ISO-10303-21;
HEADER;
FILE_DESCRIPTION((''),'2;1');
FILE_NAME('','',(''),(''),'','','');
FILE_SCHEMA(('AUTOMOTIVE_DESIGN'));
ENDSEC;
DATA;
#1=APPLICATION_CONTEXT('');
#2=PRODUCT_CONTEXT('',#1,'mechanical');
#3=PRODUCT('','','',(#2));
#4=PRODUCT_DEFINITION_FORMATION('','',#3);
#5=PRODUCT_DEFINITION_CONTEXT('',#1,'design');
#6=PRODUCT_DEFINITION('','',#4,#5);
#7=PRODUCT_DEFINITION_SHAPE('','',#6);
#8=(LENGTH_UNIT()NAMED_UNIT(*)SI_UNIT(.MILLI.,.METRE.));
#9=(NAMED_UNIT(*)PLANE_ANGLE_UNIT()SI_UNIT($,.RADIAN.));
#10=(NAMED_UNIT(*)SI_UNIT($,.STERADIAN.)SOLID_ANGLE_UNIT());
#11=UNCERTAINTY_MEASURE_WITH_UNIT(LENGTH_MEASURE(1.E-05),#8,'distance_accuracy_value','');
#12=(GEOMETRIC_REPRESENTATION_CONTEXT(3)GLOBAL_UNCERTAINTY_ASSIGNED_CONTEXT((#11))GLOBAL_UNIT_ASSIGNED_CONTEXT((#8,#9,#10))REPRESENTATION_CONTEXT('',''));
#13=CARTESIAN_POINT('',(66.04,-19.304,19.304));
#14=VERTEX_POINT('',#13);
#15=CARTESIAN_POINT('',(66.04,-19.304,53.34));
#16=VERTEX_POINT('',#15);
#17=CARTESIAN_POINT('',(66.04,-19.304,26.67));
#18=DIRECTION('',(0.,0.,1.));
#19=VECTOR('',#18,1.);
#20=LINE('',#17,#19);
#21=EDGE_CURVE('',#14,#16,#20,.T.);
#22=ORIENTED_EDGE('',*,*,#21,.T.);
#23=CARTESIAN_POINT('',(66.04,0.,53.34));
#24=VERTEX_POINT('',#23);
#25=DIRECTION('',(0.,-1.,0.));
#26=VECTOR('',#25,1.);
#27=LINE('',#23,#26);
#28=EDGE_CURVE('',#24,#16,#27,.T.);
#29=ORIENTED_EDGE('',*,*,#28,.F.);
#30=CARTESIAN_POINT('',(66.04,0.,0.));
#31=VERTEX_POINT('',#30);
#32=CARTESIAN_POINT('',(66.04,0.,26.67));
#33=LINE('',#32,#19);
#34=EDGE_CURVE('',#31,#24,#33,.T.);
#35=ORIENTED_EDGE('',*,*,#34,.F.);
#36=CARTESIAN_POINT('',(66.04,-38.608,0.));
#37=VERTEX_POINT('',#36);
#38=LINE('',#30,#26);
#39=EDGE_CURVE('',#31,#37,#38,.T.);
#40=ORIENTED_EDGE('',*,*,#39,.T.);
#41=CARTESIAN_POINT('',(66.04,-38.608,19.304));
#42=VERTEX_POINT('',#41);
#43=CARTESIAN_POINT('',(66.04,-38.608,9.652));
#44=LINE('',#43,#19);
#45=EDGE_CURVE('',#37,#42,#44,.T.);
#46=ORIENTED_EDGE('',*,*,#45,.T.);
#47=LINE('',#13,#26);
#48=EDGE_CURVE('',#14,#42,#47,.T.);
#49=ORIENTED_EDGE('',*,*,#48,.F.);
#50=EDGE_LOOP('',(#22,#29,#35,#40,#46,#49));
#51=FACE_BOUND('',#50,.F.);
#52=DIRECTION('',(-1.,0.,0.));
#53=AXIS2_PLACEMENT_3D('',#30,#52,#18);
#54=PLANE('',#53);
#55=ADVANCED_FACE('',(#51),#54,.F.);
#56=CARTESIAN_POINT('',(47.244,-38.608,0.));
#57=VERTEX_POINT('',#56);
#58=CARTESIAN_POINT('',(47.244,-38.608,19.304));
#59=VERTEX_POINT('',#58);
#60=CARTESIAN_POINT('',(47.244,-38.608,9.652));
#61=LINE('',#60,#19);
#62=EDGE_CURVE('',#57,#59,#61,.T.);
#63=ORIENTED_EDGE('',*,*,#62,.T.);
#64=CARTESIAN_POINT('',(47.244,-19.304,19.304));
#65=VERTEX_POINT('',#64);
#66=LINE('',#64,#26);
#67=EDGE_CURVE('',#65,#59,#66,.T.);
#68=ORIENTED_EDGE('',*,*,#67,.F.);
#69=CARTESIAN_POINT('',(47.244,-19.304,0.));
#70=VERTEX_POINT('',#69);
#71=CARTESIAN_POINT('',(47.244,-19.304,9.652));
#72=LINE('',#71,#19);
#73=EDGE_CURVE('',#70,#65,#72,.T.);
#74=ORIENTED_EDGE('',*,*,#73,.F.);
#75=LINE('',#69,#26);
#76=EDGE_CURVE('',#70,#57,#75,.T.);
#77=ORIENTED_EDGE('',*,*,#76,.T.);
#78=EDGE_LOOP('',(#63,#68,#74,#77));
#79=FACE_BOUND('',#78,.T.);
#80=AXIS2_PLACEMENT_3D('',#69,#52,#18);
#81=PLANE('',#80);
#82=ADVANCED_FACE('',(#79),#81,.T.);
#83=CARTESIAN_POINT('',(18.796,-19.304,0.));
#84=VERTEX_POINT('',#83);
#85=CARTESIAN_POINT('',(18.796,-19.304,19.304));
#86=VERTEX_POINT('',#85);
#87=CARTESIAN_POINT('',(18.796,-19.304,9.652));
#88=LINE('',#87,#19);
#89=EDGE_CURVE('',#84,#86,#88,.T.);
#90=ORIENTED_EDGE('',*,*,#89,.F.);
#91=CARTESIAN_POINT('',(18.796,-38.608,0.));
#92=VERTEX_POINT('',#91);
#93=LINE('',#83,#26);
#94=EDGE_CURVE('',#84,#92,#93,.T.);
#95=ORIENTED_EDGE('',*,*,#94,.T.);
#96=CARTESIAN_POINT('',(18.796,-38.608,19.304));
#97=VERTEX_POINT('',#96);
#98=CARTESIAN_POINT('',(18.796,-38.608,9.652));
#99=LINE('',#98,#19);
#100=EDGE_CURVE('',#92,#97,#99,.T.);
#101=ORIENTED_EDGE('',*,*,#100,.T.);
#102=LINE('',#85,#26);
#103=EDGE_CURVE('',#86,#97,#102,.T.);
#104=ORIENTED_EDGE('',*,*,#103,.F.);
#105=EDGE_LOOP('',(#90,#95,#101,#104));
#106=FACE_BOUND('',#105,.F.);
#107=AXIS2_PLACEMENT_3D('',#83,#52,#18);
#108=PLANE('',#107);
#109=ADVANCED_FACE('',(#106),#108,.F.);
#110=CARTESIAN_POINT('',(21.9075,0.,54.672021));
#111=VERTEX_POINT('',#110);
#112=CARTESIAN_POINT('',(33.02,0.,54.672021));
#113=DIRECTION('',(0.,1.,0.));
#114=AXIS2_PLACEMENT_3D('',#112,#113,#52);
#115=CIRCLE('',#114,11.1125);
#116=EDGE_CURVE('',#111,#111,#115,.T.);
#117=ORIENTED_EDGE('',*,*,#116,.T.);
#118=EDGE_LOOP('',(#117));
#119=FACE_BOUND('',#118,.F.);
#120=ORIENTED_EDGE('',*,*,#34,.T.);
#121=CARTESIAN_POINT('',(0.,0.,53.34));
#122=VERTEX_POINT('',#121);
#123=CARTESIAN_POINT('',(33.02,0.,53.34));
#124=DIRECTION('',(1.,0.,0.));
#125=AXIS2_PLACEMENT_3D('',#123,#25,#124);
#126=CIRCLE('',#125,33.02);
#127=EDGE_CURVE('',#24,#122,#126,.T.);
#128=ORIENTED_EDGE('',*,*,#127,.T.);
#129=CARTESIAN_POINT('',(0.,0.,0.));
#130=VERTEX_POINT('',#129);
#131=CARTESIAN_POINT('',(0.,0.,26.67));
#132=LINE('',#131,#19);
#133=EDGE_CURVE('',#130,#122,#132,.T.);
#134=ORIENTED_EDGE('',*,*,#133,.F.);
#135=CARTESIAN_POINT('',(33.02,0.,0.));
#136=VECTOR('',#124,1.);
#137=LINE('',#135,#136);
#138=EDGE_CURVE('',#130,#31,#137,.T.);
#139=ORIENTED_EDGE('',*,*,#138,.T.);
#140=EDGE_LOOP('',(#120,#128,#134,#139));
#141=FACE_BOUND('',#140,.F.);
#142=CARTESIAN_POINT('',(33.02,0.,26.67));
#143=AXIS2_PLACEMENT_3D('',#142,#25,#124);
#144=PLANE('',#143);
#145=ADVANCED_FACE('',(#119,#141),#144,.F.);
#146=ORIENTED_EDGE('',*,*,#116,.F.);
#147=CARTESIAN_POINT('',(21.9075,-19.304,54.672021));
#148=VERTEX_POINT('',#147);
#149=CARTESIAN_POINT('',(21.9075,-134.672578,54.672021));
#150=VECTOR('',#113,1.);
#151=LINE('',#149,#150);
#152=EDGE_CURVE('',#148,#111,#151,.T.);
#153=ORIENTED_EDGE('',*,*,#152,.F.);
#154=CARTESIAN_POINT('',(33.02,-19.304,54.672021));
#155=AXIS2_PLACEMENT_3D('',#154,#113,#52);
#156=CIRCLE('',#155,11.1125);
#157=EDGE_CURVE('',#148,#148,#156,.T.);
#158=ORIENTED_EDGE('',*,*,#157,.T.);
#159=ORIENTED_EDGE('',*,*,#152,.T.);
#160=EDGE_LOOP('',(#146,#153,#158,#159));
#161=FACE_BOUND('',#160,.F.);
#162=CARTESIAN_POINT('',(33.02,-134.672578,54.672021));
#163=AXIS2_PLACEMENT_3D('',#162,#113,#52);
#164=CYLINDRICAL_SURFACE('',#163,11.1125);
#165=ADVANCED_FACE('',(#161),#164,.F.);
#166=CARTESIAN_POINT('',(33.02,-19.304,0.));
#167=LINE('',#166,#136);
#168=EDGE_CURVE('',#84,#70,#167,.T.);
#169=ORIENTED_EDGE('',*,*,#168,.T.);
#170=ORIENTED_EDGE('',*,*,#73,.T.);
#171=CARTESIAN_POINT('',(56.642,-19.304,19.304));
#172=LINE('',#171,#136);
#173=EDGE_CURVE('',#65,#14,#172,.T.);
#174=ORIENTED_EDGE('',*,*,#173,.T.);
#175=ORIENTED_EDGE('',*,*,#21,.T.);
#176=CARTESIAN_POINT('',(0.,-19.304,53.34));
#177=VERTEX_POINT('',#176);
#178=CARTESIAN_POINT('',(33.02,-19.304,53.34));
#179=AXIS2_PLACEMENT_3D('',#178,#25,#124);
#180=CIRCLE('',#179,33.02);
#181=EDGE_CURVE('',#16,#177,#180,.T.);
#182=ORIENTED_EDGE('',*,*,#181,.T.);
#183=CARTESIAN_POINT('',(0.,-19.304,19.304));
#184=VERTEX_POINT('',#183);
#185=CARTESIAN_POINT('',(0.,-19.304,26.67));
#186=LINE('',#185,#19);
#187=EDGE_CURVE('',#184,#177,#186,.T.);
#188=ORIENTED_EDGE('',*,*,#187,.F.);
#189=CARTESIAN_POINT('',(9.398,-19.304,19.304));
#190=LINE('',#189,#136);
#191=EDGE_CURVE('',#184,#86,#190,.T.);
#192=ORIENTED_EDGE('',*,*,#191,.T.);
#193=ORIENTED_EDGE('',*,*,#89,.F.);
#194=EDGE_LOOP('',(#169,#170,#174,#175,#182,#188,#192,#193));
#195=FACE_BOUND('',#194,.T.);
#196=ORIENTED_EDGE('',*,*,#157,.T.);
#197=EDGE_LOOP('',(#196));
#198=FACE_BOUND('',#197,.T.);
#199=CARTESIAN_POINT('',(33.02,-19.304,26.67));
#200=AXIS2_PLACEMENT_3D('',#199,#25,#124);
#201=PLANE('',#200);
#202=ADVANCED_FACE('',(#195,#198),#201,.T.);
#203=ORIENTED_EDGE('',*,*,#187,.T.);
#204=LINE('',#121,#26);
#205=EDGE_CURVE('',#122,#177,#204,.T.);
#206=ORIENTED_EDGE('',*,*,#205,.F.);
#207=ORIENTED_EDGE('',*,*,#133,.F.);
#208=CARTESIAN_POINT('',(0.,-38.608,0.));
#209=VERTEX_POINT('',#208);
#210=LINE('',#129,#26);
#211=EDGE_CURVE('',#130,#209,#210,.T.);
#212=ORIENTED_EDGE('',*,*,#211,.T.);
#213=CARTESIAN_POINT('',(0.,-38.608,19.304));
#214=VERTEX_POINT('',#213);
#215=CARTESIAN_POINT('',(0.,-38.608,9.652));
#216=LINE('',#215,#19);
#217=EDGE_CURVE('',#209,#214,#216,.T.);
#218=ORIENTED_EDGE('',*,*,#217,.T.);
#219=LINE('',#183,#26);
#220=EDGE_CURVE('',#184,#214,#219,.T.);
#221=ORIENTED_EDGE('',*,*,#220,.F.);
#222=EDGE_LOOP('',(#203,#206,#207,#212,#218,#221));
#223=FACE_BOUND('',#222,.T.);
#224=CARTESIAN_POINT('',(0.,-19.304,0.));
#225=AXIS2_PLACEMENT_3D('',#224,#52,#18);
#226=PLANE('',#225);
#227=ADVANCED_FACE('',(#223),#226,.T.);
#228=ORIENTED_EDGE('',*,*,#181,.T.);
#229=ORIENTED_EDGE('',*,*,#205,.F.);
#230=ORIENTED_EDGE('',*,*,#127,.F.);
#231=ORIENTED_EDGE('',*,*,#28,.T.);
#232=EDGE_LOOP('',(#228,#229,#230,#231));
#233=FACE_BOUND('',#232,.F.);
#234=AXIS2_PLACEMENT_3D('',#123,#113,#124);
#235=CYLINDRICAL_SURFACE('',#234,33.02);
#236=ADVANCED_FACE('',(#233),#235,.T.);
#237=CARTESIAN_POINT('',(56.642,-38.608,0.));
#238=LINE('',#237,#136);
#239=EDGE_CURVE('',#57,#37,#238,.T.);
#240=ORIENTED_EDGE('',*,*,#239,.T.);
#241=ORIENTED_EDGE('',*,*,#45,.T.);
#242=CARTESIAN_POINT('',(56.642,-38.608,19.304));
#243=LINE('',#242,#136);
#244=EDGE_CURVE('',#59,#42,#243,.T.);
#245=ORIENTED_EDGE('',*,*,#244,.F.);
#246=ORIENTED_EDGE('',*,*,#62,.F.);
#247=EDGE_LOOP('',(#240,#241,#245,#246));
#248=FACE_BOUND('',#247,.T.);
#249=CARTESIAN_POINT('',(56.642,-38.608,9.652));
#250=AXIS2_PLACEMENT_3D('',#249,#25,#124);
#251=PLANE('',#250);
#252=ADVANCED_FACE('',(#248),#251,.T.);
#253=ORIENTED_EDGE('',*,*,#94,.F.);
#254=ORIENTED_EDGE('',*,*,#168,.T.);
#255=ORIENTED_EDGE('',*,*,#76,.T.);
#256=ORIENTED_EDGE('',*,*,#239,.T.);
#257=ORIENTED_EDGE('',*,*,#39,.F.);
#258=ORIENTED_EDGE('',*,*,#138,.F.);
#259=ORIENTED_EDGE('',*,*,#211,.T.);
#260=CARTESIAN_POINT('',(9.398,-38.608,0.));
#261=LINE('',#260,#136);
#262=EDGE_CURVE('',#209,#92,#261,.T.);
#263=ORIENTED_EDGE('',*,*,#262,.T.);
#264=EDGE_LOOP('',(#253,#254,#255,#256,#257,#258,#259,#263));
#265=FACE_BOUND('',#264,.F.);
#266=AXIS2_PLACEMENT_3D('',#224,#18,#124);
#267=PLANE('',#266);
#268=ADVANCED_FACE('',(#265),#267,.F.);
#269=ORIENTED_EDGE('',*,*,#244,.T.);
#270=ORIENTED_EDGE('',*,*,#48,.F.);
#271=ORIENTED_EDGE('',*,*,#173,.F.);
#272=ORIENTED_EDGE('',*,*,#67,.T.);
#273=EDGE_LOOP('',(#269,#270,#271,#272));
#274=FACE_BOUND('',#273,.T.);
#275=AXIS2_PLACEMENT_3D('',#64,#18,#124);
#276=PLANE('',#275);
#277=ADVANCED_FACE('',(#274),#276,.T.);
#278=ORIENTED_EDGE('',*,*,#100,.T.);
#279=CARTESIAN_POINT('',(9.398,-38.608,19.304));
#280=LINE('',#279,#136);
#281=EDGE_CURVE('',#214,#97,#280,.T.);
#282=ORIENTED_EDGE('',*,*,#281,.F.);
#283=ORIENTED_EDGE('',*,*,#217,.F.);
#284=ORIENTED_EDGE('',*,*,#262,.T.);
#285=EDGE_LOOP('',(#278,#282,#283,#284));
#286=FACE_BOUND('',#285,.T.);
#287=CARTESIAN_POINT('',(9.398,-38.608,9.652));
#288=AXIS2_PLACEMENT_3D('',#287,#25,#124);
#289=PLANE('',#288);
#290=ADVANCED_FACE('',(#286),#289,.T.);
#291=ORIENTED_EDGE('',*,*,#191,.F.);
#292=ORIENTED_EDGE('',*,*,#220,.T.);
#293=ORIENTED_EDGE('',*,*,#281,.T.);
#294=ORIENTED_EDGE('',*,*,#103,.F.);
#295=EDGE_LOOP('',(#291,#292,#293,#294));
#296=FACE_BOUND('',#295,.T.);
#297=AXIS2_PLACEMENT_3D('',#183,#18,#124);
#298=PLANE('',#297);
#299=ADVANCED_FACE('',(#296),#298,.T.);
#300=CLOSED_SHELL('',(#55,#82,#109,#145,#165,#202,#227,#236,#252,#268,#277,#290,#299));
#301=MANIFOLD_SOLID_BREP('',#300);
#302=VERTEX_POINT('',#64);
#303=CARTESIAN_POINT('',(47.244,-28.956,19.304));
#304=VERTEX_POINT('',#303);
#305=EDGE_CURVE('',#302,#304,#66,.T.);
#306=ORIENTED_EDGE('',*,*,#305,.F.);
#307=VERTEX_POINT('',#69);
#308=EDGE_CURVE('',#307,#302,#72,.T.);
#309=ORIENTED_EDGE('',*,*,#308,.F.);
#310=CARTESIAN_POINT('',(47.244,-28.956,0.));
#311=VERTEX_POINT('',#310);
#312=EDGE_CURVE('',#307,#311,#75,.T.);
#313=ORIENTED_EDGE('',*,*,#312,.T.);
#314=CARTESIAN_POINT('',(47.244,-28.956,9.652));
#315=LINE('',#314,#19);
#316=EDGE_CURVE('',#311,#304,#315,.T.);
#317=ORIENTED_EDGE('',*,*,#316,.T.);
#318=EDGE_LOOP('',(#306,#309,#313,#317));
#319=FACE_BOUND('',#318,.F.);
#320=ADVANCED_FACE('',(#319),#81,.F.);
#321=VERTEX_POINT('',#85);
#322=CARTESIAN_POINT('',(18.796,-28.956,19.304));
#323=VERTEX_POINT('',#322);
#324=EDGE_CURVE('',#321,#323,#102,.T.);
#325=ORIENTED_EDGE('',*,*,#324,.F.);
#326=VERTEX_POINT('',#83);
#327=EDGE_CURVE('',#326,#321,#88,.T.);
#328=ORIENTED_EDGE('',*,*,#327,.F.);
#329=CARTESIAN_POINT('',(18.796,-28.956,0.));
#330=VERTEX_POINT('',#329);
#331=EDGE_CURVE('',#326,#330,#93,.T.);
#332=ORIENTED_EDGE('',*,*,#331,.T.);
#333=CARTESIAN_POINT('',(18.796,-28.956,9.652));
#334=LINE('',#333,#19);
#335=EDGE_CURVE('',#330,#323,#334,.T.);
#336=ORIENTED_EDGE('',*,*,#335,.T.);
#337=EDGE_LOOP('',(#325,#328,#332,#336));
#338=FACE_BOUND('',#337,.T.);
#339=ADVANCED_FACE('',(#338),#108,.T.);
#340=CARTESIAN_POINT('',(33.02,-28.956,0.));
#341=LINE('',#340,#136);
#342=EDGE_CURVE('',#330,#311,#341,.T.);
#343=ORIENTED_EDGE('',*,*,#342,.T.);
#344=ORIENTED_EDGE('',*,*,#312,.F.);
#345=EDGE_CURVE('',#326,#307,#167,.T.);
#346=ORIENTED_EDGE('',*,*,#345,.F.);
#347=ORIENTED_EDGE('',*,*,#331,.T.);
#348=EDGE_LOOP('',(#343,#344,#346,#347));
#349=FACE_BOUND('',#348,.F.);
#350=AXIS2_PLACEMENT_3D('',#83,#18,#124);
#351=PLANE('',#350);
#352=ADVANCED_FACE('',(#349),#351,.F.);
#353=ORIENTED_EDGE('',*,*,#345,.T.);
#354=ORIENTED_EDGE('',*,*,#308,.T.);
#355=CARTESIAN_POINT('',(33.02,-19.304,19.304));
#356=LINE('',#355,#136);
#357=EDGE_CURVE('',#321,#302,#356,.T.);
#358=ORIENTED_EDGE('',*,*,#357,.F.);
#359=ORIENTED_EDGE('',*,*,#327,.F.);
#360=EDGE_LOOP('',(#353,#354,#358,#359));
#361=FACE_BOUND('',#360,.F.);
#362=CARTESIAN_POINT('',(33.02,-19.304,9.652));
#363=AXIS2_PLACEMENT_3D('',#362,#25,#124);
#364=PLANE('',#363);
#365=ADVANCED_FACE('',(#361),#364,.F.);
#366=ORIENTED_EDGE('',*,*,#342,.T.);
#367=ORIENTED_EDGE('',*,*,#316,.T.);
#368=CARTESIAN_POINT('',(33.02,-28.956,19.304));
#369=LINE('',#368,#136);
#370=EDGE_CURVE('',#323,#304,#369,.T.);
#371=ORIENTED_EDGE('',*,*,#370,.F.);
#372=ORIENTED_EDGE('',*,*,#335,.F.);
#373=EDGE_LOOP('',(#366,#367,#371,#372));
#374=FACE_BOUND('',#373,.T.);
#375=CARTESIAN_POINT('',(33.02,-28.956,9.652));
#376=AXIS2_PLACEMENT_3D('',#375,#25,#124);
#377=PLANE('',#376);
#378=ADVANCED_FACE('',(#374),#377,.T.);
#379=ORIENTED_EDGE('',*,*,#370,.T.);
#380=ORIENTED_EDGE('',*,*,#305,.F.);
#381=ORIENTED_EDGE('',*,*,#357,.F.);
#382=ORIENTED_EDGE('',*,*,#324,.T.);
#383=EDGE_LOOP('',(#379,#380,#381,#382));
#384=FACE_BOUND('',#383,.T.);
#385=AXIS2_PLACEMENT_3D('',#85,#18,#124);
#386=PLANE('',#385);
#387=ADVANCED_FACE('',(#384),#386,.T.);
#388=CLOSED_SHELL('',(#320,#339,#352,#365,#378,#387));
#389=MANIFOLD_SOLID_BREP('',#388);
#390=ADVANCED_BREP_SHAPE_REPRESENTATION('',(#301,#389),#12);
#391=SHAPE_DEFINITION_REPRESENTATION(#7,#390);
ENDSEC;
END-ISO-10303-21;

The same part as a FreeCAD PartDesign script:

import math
import FreeCAD as App
import Part
import Sketcher

V = App.Vector
Q = App.Units.Quantity

doc = App.newDocument("Part")
body = doc.addObject("PartDesign::Body", "Body")

sketch1 = body.newObject("Sketcher::SketchObject", "Sketch")
sketch1.AttachmentSupport = (doc.getObject("XZ_Plane"), [""])
sketch1.MapMode = "FlatFace"
sketch1.addGeometry([
    Part.LineSegment(V(0, 53, 0), V(0, 0, 0)),
    Part.LineSegment(V(0, 0, 0), V(66, 0, 0)),
    Part.LineSegment(V(66, 0, 0), V(66, 53, 0)),
    Part.ArcOfCircle(Part.Circle(V(33, 53, 0), V(0, 0, 1), 33), math.radians(0), math.radians(180)),
], False)
sketch1.addConstraint([
    Sketcher.Constraint("Coincident", 0, 2, 1, 1),
    Sketcher.Constraint("Coincident", 1, 2, 2, 1),
    Sketcher.Constraint("Tangent", 2, 2, 3, 1),
    Sketcher.Constraint("Tangent", 3, 2, 0, 1),
    Sketcher.Constraint("Vertical", 0),
    Sketcher.Constraint("Horizontal", 1),
    Sketcher.Constraint("Vertical", 2),
    Sketcher.Constraint("Coincident", 0, 2, -1, 1),
    Sketcher.Constraint("Radius", 3, Q("1.3 in")),
    Sketcher.Constraint("DistanceY", 0, 2, 0, 1, Q("2.1 in")),
])
pad1 = body.newObject("PartDesign::Pad", "Pad")
pad1.Profile = sketch1
pad1.Length = Q("0.76 in")

sketch2 = body.newObject("Sketcher::SketchObject", "Sketch001")
sketch2.AttachmentSupport = (doc.getObject("XZ_Plane"), [""])
sketch2.MapMode = "FlatFace"
sketch2.AttachmentOffset = App.Placement(V(0, 0, 0.76 * 25.4), App.Rotation())
sketch2.addGeometry([
    Part.LineSegment(V(0, 19, 0), V(0, 0, 0)),
    Part.LineSegment(V(0, 0, 0), V(19, 0, 0)),
    Part.LineSegment(V(19, 0, 0), V(19, 19, 0)),
    Part.LineSegment(V(19, 19, 0), V(0, 19, 0)),
    Part.LineSegment(V(47, 19, 0), V(47, 0, 0)),
    Part.LineSegment(V(47, 0, 0), V(66, 0, 0)),
    Part.LineSegment(V(66, 0, 0), V(66, 19, 0)),
    Part.LineSegment(V(66, 19, 0), V(47, 19, 0)),
], False)
sketch2.addConstraint([
    Sketcher.Constraint("Coincident", 0, 2, 1, 1),
    Sketcher.Constraint("Coincident", 1, 2, 2, 1),
    Sketcher.Constraint("Coincident", 2, 2, 3, 1),
    Sketcher.Constraint("Coincident", 3, 2, 0, 1),
    Sketcher.Constraint("Coincident", 4, 2, 5, 1),
    Sketcher.Constraint("Coincident", 5, 2, 6, 1),
    Sketcher.Constraint("Coincident", 6, 2, 7, 1),
    Sketcher.Constraint("Coincident", 7, 2, 4, 1),
    Sketcher.Constraint("Vertical", 0),
    Sketcher.Constraint("Horizontal", 1),
    Sketcher.Constraint("Vertical", 2),
    Sketcher.Constraint("Horizontal", 3),
    Sketcher.Constraint("Vertical", 4),
    Sketcher.Constraint("Horizontal", 5),
    Sketcher.Constraint("Vertical", 6),
    Sketcher.Constraint("Horizontal", 7),
    Sketcher.Constraint("Coincident", 0, 2, -1, 1),
    Sketcher.Constraint("PointOnObject", 4, 2, -1),
    Sketcher.Constraint("Horizontal", 3, 2, 6, 2),
    Sketcher.Constraint("Equal", 3, 5),
    Sketcher.Constraint("DistanceX", 1, 1, 1, 2, Q("0.74 in")),
    Sketcher.Constraint("DistanceY", 0, 2, 0, 1, Q("0.76 in")),
    Sketcher.Constraint("DistanceX", -1, 1, 5, 2, Q("2.6 in")),
])
pad2 = body.newObject("PartDesign::Pad", "Pad001")
pad2.Profile = sketch2
pad2.Length = Q("0.76 in")

sketch3 = body.newObject("Sketcher::SketchObject", "Sketch002")
sketch3.AttachmentSupport = (doc.getObject("XZ_Plane"), [""])
sketch3.MapMode = "FlatFace"
sketch3.AttachmentOffset = App.Placement(V(0, 0, 0.76 * 25.4), App.Rotation())
sketch3.addGeometry(Part.Circle(V(33, 55, 0), V(0, 0, 1), 11), False)
sketch3.addConstraint([
    Sketcher.Constraint("Diameter", 0, Q("0.875 in")),
    Sketcher.Constraint("DistanceX", -1, 1, 0, 3, Q("1.3 in")),
    Sketcher.Constraint("DistanceY", -1, 1, 0, 3, 54.672021),
])
doc.recompute()
hole = body.newObject("PartDesign::Hole", "Hole")
hole.Profile = sketch3
hole.ThreadType = "None"
hole.Diameter = Q("0.875 in")
hole.DepthType = "ThroughAll"
body2 = doc.addObject("PartDesign::Body", "Body001")

sketch4 = body2.newObject("Sketcher::SketchObject", "Sketch003")
sketch4.AttachmentSupport = (doc.getObject("XZ_Plane001"), [""])
sketch4.MapMode = "FlatFace"
sketch4.AttachmentOffset = App.Placement(V(0, 0, 0.76 * 25.4), App.Rotation())
sketch4.addGeometry([
    Part.LineSegment(V(19, 19, 0), V(19, 0, 0)),
    Part.LineSegment(V(19, 0, 0), V(47, 0, 0)),
    Part.LineSegment(V(47, 0, 0), V(47, 19, 0)),
    Part.LineSegment(V(47, 19, 0), V(19, 19, 0)),
], False)
sketch4.addConstraint([
    Sketcher.Constraint("Coincident", 0, 2, 1, 1),
    Sketcher.Constraint("Coincident", 1, 2, 2, 1),
    Sketcher.Constraint("Coincident", 2, 2, 3, 1),
    Sketcher.Constraint("Coincident", 3, 2, 0, 1),
    Sketcher.Constraint("Vertical", 0),
    Sketcher.Constraint("Horizontal", 1),
    Sketcher.Constraint("Vertical", 2),
    Sketcher.Constraint("Horizontal", 3),
    Sketcher.Constraint("PointOnObject", 0, 2, -1),
    Sketcher.Constraint("DistanceX", 1, 1, 1, 2, Q("1.12 in")),
    Sketcher.Constraint("DistanceY", 0, 2, 0, 1, Q("0.76 in")),
    Sketcher.Constraint("DistanceX", -1, 1, 0, 2, Q("0.74 in")),
])
pad3 = body2.newObject("PartDesign::Pad", "Pad002")
pad3.Profile = sketch4
pad3.Length = Q("0.38 in")

doc.recompute()
